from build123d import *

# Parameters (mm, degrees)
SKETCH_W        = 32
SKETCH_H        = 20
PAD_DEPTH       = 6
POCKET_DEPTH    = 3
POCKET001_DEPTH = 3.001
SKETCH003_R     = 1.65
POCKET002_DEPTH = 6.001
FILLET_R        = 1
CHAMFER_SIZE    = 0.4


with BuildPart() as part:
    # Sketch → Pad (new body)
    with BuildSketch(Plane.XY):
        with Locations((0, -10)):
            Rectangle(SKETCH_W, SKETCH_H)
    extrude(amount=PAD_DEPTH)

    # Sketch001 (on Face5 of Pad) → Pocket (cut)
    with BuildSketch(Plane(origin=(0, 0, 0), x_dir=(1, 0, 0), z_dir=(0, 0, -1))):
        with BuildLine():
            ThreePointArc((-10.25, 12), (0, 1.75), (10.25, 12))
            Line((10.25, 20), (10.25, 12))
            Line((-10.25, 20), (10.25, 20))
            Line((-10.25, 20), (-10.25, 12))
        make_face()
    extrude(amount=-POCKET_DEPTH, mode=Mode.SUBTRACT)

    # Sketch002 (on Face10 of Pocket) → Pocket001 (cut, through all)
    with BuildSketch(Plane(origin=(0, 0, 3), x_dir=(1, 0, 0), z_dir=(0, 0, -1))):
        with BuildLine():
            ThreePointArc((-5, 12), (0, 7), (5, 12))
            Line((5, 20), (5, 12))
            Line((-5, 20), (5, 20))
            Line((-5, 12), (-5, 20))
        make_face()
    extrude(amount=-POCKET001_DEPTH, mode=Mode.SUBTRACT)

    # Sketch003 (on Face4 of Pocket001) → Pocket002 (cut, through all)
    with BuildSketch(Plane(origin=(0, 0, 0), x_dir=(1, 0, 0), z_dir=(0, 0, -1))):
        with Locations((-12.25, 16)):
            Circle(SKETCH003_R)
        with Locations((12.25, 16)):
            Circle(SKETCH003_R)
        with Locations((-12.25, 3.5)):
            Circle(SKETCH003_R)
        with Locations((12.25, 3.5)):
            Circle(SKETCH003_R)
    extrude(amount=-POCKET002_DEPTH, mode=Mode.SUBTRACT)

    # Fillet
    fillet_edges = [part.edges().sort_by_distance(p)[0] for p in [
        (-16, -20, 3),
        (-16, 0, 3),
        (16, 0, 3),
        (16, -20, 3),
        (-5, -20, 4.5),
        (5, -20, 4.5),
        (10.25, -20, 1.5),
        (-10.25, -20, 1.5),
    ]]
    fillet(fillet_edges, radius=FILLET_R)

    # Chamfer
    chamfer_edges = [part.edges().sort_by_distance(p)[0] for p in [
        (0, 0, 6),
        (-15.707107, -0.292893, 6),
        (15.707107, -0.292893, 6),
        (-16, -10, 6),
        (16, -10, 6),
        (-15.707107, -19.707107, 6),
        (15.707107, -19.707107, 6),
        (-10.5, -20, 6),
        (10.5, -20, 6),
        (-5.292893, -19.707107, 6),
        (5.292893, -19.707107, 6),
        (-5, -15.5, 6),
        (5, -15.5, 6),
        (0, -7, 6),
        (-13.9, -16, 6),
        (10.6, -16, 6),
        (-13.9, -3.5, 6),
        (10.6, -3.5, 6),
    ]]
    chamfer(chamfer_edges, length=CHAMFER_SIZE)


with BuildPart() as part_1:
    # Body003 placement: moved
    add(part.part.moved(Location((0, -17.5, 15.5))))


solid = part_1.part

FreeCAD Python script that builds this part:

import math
import FreeCAD as App
import Part
import Sketcher
from FreeCAD import Vector
Q = App.Units.Quantity


def edges_at(feature, points):
    """Names of the edges that pass closest to the given points."""
    edges = feature.Shape.Edges
    near = lambda p: min(range(len(edges)), key=lambda i: edges[i].distToShape(Part.Vertex(*p))[0])
    return sorted({f"Edge{near(p) + 1}" for p in points})


def add_polygon(sketch, points):
    """Adds a closed chain of lines whose ends are joined by coincident constraints."""
    first, n = sketch.GeometryCount, len(points)
    for a, b in zip(points, points[1:] + points[:1]):
        sketch.addGeometry(Part.LineSegment(App.Vector(*a, 0), App.Vector(*b, 0)), False)
    for i in range(n):
        sketch.addConstraint(Sketcher.Constraint("Coincident", first + i, 2, first + (i + 1) % n, 1))

doc = App.newDocument("Part")
body = doc.addObject("PartDesign::Body", "Body")

# Sketch on XY plane
sketch1 = body.newObject("Sketcher::SketchObject", "Sketch")
sketch1.AttachmentSupport = (doc.getObject("XY_Plane"), [""])
sketch1.MapMode = "FlatFace"
add_polygon(sketch1, [(-16, 0), (-16, -20), (16, -20), (16, 0)])  # lines 0-3
sketch1.addConstraint(Sketcher.Constraint("Vertical", 0))
sketch1.addConstraint(Sketcher.Constraint("Horizontal", 1))
sketch1.addConstraint(Sketcher.Constraint("Vertical", 2))
sketch1.addConstraint(Sketcher.Constraint("Horizontal", 3))
sketch1.addConstraint(Sketcher.Constraint("Symmetric", 2, 2, 3, 2, -1, 1))
sketch1.addConstraint(Sketcher.Constraint("DistanceX", 1, 1, 1, 2, Q("32 mm")))
sketch1.addConstraint(Sketcher.Constraint("DistanceY", 0, 2, 0, 1, Q("20 mm")))
pad1 = body.newObject("PartDesign::Pad", "Pad")
pad1.Profile = sketch1
pad1.Length = 6

# Sketch on XY plane
sketch2 = body.newObject("Sketcher::SketchObject", "Sketch001")
sketch2.AttachmentSupport = (doc.getObject("XY_Plane"), [""])
sketch2.MapMode = "FlatFace"
sketch2.addGeometry(Part.ArcOfCircle(Part.Circle(Vector(0, -12, 0), Vector(0, 0, 1), 10.25), math.radians(0), math.radians(180)), False)
sketch2.addGeometry(Part.LineSegment(Vector(10.25, -12, 0), Vector(10.25, -20, 0)), False)
sketch2.addGeometry(Part.LineSegment(Vector(10.25, -20, 0), Vector(-10.25, -20, 0)), False)
sketch2.addGeometry(Part.LineSegment(Vector(-10.25, -20, 0), Vector(-10.25, -12, 0)), False)
sketch2.addConstraint(Sketcher.Constraint("Tangent", 0, 1, 1, 1))
sketch2.addConstraint(Sketcher.Constraint("Coincident", 1, 2, 2, 1))
sketch2.addConstraint(Sketcher.Constraint("Coincident", 2, 2, 3, 1))
sketch2.addConstraint(Sketcher.Constraint("Tangent", 3, 2, 0, 2))
sketch2.addConstraint(Sketcher.Constraint("Vertical", 1))
sketch2.addConstraint(Sketcher.Constraint("Horizontal", 2))
sketch2.addConstraint(Sketcher.Constraint("Vertical", 3))
sketch2.addConstraint(Sketcher.Constraint("PointOnObject", 0, 3, -2))
sketch2.addConstraint(Sketcher.Constraint("DistanceY", 1, 2, 1, 1, Q("8 mm")))
sketch2.addConstraint(Sketcher.Constraint("Radius", 0, Q("10.25 mm")))
sketch2.addConstraint(Sketcher.Constraint("DistanceY", 0, 3, -1, 1, Q("12 mm")))
pocket1 = body.newObject("PartDesign::Pocket", "Pocket")
pocket1.Profile = sketch2
pocket1.Length = 3
pocket1.Reversed = True

# Sketch on XY plane
sketch3 = body.newObject("Sketcher::SketchObject", "Sketch002")
sketch3.AttachmentSupport = (doc.getObject("XY_Plane"), [""])
sketch3.MapMode = "FlatFace"
sketch3.AttachmentOffset = App.Placement(Vector(0, 0, 3), App.Rotation())
sketch3.addGeometry(Part.ArcOfCircle(Part.Circle(Vector(0, -12, 0), Vector(0, 0, 1), 5), math.radians(0), math.radians(180)), False)
sketch3.addGeometry(Part.LineSegment(Vector(5, -12, 0), Vector(5, -20, 0)), False)
sketch3.addGeometry(Part.LineSegment(Vector(5, -20, 0), Vector(-5, -20, 0)), False)
sketch3.addGeometry(Part.LineSegment(Vector(-5, -20, 0), Vector(-5, -12, 0)), False)
sketch3.addConstraint(Sketcher.Constraint("Tangent", 0, 1, 1, 1))
sketch3.addConstraint(Sketcher.Constraint("Coincident", 1, 2, 2, 1))
sketch3.addConstraint(Sketcher.Constraint("Coincident", 2, 2, 3, 1))
sketch3.addConstraint(Sketcher.Constraint("Tangent", 3, 2, 0, 2))
sketch3.addConstraint(Sketcher.Constraint("Vertical", 1))
sketch3.addConstraint(Sketcher.Constraint("Horizontal", 2))
sketch3.addConstraint(Sketcher.Constraint("Vertical", 3))
sketch3.addConstraint(Sketcher.Constraint("PointOnObject", 0, 3, -2))
sketch3.addConstraint(Sketcher.Constraint("Radius", 0, Q("5 mm")))
sketch3.addConstraint(Sketcher.Constraint("DistanceY", 1, 2, 1, 1, Q("8 mm")))
sketch3.addConstraint(Sketcher.Constraint("DistanceY", 0, 3, -1, 1, Q("12 mm")))
pocket2 = body.newObject("PartDesign::Pocket", "Pocket001")
pocket2.Profile = sketch3
pocket2.Type = "ThroughAll"
pocket2.Reversed = True

# Sketch on XY plane
sketch4 = body.newObject("Sketcher::SketchObject", "Sketch003")
sketch4.AttachmentSupport = (doc.getObject("XY_Plane"), [""])
sketch4.MapMode = "FlatFace"
sketch4.addGeometry(Part.Circle(Vector(-12.25, -16, 0), Vector(0, 0, 1), 1.65), False)
sketch4.addGeometry(Part.Circle(Vector(12.25, -16, 0), Vector(0, 0, 1), 1.65), False)
sketch4.addGeometry(Part.Circle(Vector(-12.25, -3.5, 0), Vector(0, 0, 1), 1.65), False)
sketch4.addGeometry(Part.Circle(Vector(12.25, -3.5, 0), Vector(0, 0, 1), 1.65), False)
sketch4.addConstraint(Sketcher.Constraint("Equal", 0, 1))
sketch4.addConstraint(Sketcher.Constraint("Equal", 1, 2))
sketch4.addConstraint(Sketcher.Constraint("Equal", 2, 3))
sketch4.addConstraint(Sketcher.Constraint("Symmetric", 0, 3, 1, 3, -2))
sketch4.addConstraint(Sketcher.Constraint("Symmetric", 2, 3, 3, 3, -2))
sketch4.addConstraint(Sketcher.Constraint("Vertical", 0, 3, 2, 3))
sketch4.addConstraint(Sketcher.Constraint("Diameter", 0, Q("3.3 mm")))
sketch4.addConstraint(Sketcher.Constraint("DistanceY", 0, 3, -1, 1, Q("16 mm")))
sketch4.addConstraint(Sketcher.Constraint("DistanceY", 2, 3, -1, 1, Q("3.5 mm")))
sketch4.addConstraint(Sketcher.Constraint("DistanceX", 0, 3, 1, 3, Q("24.5 mm")))
pocket3 = body.newObject("PartDesign::Pocket", "Pocket002")
pocket3.Profile = sketch4
pocket3.Type = "ThroughAll"
pocket3.Reversed = True
doc.recompute()

fillet = body.newObject("PartDesign::Fillet", "Fillet")
fillet.Base = (pocket3, edges_at(pocket3, [
    (-16, -20, 3),
    (-16, 0, 3),
    (16, 0, 3),
    (16, -20, 3),
    (-5, -20, 4.5),
    (5, -20, 4.5),
    (10.25, -20, 1.5),
    (-10.25, -20, 1.5),
]))
fillet.Radius = 1
doc.recompute()

chamfer = body.newObject("PartDesign::Chamfer", "Chamfer")
chamfer.Base = (fillet, edges_at(fillet, [
    (0, 0, 6),
    (-15.707, -0.293, 6),
    (15.707, -0.293, 6),
    (-16, -10, 6),
    (16, -10, 6),
    (-15.707, -19.707, 6),
    (15.707, -19.707, 6),
    (-10.5, -20, 6),
    (10.5, -20, 6),
    (-5.293, -19.707, 6),
    (5.293, -19.707, 6),
    (-5, -15.5, 6),
    (5, -15.5, 6),
    (0, -7, 6),
    (-13.9, -16, 6),
    (10.6, -16, 6),
    (-13.9, -3.5, 6),
    (10.6, -3.5, 6),
]))
chamfer.Size = 0.4
body2 = doc.addObject("PartDesign::Body", "Body001")
doc.recompute()

body.Placement = App.Placement(Vector(0, -17.5, 15.5), App.Rotation(Vector(0, 0, 1), 0))
boolean = body2.newObject("PartDesign::Boolean", "Boolean")
boolean.Type = "Fuse"
boolean.addObjects([body])

doc.recompute()
